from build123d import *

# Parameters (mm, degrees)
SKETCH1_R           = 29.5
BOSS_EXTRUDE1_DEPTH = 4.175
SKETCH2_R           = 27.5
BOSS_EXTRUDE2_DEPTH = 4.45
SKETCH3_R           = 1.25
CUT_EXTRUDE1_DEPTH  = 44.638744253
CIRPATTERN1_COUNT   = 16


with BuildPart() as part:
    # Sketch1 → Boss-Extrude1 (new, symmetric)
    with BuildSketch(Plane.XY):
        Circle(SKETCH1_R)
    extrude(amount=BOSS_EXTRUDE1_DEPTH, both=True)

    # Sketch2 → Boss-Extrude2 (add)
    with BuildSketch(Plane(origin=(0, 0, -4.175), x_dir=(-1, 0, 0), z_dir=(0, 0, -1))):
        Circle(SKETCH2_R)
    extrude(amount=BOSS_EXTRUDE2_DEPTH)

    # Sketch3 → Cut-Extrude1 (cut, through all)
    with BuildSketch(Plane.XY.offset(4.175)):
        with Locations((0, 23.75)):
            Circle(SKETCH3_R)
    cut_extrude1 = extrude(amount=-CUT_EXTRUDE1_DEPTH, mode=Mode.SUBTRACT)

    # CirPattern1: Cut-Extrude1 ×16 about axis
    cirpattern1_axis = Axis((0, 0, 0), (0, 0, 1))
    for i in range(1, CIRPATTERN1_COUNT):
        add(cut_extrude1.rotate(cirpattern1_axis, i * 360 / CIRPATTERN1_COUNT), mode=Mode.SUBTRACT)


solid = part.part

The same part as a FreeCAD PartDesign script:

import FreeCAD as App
import Part
import Sketcher
Q = App.Units.Quantity

doc = App.newDocument("Part")
params = doc.addObject("Spreadsheet::Sheet", "Params")
for row, (alias, value) in enumerate([
    ("sketch1_diameter", "59 mm"),
    ("pad1_length", "8.35 mm"),
    ("sketch2_diameter", "55 mm"),
    ("pad2_length", "4.45 mm"),
    ("sketch3_diameter", "2.5 mm"),
], start=1):
    params.set(f"A{row}", alias)
    params.set(f"B{row}", "=" + value)
    params.setAlias(f"B{row}", alias)

body = doc.addObject("PartDesign::Body", "Body")

sketch1 = body.newObject("Sketcher::SketchObject", "Sketch")
sketch1.AttachmentSupport = (doc.getObject("XY_Plane"), [""])
sketch1.MapMode = "FlatFace"
sketch1.addGeometry(Part.Circle(App.Vector(0, 0, 0), App.Vector(0, 0, 1), 29.5), False)
sketch1.addConstraint(Sketcher.Constraint("Coincident", 0, 3, -1, 1))
sketch1.addConstraint(Sketcher.Constraint("Diameter", 0, Q("59 mm")))
sketch1.setExpression("Constraints[1]", "Params.sketch1_diameter")
pad1 = body.newObject("PartDesign::Pad", "Pad")
pad1.Profile = sketch1
pad1.setExpression("Length", "Params.pad1_length")
pad1.Midplane = True

sketch2 = body.newObject("Sketcher::SketchObject", "Sketch001")
sketch2.AttachmentSupport = (doc.getObject("XY_Plane"), [""])
sketch2.MapMode = "FlatFace"
sketch2.AttachmentOffset = App.Placement(App.Vector(0, 0, -4.175), App.Rotation())
sketch2.addGeometry(Part.Circle(App.Vector(0, 0, 0), App.Vector(0, 0, 1), 27.5), False)
sketch2.addConstraint(Sketcher.Constraint("Coincident", 0, 3, -1, 1))
sketch2.addConstraint(Sketcher.Constraint("Diameter", 0, Q("55 mm")))
sketch2.setExpression("Constraints[1]", "Params.sketch2_diameter")
pad2 = body.newObject("PartDesign::Pad", "Pad001")
pad2.Profile = sketch2
pad2.setExpression("Length", "Params.pad2_length")
pad2.Reversed = True

sketch3 = body.newObject("Sketcher::SketchObject", "Sketch002")
sketch3.AttachmentSupport = (doc.getObject("XY_Plane"), [""])
sketch3.MapMode = "FlatFace"
sketch3.AttachmentOffset = App.Placement(App.Vector(0, 0, 4.175), App.Rotation())
sketch3.addGeometry(Part.Circle(App.Vector(0, 23.75, 0), App.Vector(0, 0, 1), 1.25), False)
sketch3.addConstraint(Sketcher.Constraint("PointOnObject", 0, 3, -2))
sketch3.addConstraint(Sketcher.Constraint("Diameter", 0, Q("2.5 mm")))
sketch3.addConstraint(Sketcher.Constraint("DistanceY", -1, 1, 0, 3, Q("23.75 mm")))
sketch3.setExpression("Constraints[1]", "Params.sketch3_diameter")
pocket1 = body.newObject("PartDesign::Pocket", "Pocket")
pocket1.Profile = sketch3
pocket1.Type = "ThroughAll"
doc.recompute()

polarpattern = body.newObject("PartDesign::PolarPattern", "PolarPattern")
polarpattern.Originals = [pocket1]
polarpattern.Axis = (doc.getObject("Z_Axis"), [""])
polarpattern.Angle = 360
polarpattern.Occurrences = 16
body.Tip = polarpattern

doc.recompute()
